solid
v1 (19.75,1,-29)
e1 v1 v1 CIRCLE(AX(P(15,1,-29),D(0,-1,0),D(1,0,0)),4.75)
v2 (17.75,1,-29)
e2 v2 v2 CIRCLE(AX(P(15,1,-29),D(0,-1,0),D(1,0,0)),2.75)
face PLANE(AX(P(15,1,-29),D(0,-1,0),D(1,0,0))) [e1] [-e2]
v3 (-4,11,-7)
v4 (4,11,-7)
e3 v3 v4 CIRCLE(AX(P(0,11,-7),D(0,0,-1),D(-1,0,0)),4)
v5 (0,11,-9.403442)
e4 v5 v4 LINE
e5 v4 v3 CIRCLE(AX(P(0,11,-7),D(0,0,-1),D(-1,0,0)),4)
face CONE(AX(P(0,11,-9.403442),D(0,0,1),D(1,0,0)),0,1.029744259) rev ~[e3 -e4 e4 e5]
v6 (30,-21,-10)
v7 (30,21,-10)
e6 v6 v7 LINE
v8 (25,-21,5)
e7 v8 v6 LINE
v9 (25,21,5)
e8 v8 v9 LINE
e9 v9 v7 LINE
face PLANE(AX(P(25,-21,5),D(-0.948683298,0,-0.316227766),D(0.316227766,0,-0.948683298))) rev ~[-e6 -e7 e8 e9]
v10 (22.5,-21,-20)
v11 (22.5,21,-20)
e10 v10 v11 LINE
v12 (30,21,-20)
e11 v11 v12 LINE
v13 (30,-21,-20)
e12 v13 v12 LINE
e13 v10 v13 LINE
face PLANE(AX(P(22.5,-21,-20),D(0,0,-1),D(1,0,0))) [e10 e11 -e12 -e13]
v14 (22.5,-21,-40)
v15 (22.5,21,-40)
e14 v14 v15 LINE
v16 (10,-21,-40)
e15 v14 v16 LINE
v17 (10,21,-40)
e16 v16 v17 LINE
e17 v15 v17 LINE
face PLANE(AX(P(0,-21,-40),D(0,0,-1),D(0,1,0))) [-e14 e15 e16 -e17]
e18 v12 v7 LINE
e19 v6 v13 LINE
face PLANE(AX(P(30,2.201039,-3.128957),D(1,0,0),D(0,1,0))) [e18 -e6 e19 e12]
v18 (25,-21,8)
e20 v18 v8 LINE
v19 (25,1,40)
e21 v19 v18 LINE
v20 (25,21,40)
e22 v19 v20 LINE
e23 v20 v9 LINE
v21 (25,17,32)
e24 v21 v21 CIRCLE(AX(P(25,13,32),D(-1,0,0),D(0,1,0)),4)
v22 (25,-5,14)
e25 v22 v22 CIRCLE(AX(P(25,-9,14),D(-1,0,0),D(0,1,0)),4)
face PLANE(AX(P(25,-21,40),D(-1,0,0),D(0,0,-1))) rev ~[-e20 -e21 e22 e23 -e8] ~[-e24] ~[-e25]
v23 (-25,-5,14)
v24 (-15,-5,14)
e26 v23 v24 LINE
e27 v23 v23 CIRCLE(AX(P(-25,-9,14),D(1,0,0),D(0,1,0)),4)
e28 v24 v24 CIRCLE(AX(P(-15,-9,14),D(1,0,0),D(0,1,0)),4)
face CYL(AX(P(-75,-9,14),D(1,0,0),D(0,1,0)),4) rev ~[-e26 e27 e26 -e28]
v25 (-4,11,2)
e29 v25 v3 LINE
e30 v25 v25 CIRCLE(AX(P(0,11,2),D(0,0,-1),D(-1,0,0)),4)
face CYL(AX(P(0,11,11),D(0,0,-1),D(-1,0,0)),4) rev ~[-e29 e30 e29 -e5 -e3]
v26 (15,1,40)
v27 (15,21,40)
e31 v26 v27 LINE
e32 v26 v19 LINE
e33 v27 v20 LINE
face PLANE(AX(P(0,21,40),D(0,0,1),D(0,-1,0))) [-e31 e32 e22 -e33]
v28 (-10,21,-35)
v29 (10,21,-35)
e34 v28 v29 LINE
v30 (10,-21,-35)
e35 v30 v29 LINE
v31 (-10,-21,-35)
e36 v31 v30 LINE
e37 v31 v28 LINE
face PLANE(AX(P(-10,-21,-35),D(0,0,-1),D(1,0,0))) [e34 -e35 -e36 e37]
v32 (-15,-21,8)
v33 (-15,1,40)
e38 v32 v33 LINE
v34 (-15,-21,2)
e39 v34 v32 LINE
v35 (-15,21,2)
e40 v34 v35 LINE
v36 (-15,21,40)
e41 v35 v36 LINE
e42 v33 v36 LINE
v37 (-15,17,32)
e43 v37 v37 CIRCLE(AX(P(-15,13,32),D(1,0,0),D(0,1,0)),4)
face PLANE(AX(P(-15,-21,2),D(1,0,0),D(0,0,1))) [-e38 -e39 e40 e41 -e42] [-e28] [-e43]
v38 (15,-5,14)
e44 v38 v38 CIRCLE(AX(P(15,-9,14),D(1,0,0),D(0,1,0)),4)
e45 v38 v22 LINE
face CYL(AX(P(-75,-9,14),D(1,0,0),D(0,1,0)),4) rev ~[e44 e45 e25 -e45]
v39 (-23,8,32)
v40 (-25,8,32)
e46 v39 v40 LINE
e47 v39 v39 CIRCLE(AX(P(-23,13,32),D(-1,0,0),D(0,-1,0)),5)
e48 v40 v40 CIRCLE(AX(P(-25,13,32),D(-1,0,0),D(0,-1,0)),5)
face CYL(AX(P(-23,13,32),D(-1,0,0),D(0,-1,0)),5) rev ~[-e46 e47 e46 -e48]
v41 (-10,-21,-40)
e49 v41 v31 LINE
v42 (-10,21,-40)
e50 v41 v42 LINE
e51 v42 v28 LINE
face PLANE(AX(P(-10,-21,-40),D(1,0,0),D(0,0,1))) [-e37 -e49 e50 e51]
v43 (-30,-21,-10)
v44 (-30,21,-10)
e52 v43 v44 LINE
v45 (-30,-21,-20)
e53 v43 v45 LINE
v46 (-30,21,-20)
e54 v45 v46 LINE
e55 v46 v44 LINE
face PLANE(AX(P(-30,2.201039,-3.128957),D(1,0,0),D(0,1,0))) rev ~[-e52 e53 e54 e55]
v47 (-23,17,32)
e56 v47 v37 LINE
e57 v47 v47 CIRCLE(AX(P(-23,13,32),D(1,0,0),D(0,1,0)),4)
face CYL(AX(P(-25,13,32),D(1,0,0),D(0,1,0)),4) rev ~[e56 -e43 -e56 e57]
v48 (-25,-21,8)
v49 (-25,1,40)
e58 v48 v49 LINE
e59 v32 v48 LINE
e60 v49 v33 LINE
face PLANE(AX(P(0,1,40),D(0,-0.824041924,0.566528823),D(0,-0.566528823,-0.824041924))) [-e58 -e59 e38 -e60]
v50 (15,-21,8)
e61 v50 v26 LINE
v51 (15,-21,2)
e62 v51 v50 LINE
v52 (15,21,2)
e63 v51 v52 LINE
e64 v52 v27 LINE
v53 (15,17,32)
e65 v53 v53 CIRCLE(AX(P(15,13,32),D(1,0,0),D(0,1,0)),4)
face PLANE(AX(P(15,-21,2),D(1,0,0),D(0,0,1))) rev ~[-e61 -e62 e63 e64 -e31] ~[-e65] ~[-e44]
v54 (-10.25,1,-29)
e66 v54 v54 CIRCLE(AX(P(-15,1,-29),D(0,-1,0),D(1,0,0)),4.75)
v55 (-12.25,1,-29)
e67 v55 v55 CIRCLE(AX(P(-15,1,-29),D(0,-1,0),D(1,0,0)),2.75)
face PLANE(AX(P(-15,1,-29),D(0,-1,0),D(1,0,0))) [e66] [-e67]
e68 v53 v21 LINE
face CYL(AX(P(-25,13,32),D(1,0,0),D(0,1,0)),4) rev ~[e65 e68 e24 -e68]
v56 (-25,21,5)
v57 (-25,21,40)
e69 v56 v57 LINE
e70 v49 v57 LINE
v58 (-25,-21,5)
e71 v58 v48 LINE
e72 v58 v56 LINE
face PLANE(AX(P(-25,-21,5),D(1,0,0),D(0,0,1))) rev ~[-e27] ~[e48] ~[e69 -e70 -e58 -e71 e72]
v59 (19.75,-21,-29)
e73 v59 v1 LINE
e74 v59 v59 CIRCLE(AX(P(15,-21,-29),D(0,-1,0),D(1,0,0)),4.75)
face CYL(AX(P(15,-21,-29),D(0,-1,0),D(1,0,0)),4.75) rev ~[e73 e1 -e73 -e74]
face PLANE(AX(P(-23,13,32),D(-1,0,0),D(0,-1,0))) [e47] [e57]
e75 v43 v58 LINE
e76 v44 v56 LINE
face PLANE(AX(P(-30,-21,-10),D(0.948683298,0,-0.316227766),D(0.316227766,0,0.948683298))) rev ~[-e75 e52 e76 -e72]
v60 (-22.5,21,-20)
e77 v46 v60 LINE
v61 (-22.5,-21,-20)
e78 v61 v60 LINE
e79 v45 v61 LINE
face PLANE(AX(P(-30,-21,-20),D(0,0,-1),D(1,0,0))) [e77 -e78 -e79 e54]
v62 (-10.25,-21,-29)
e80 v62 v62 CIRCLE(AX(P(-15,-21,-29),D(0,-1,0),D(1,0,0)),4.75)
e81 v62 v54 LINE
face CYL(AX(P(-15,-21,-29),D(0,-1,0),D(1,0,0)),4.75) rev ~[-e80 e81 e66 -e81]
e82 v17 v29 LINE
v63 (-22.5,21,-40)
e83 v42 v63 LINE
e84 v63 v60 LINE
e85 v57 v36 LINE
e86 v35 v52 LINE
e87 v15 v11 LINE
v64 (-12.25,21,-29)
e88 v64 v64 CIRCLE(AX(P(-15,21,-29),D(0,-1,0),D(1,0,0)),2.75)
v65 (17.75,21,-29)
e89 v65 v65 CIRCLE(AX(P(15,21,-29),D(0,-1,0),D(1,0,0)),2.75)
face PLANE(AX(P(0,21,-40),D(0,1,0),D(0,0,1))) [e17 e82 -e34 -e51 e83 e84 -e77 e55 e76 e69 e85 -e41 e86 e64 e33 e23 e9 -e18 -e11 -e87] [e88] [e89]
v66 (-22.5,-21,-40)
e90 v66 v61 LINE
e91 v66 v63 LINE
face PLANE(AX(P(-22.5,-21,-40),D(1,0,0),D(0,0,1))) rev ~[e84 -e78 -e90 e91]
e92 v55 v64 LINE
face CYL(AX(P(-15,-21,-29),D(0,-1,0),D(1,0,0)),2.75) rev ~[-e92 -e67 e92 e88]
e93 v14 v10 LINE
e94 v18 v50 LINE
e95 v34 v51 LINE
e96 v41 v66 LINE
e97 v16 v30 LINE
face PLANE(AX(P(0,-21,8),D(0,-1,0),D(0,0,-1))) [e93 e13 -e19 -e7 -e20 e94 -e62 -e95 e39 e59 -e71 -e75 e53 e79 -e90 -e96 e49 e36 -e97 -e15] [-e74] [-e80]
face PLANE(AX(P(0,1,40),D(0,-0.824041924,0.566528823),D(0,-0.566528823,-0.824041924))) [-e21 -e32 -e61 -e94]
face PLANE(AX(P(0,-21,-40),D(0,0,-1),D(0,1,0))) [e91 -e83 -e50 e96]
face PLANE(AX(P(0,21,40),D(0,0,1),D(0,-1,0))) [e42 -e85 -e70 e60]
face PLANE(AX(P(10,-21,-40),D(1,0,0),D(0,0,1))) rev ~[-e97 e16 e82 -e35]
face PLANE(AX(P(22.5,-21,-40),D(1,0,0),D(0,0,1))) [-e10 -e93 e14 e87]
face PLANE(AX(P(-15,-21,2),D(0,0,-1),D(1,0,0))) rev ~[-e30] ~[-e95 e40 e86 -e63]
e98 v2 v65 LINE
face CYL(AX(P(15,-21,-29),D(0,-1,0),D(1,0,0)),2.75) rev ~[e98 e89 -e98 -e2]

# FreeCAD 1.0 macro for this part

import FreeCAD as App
import Part
import Sketcher
from FreeCAD import Vector


def add_polygon(sketch, points):
    """Adds a closed chain of lines whose ends are joined by coincident constraints."""
    first, n = sketch.GeometryCount, len(points)
    for a, b in zip(points, points[1:] + points[:1]):
        sketch.addGeometry(Part.LineSegment(App.Vector(*a, 0), App.Vector(*b, 0)), False)
    for i in range(n):
        sketch.addConstraint(Sketcher.Constraint("Coincident", first + i, 2, first + (i + 1) % n, 1))

doc = App.newDocument("Part")
body = doc.addObject("PartDesign::Body", "Body")

sketch1 = doc.addObject("Sketcher::SketchObject", "Sketch")
body.addObject(sketch1)
sketch1.AttachmentSupport = (doc.YZ_Plane, [""])
sketch1.MapMode = "FlatFace"
add_polygon(sketch1, [(21, -40), (21, 40), (1, 40), (-21, 8), (-21, -40)])
sketch1.addConstraint([
    Sketcher.Constraint("Vertical", 0),
    Sketcher.Constraint("Horizontal", 1),
    Sketcher.Constraint("Vertical", 3),
    Sketcher.Constraint("Horizontal", 4),
    Sketcher.Constraint("Symmetric", 0, 2, 3, 2, -1, 1),
    Sketcher.Constraint("DistanceX", 1, 2, 1, 1, 20.0),
    Sketcher.Constraint("DistanceX", 4, 1, 4, 2, 42.0),
    Sketcher.Constraint("DistanceY", 0, 1, 0, 2, 80.0),
    Sketcher.Constraint("DistanceY", 3, 2, 3, 1, 48.0),
])
pad1 = doc.addObject("PartDesign::Pad", "Pad")
body.addObject(pad1)
pad1.Profile = sketch1
pad1.Length = 60
pad1.Midplane = True

sketch2 = doc.addObject("Sketcher::SketchObject", "Sketch001")
body.addObject(sketch2)
sketch2.AttachmentSupport = (doc.XZ_Plane, [""])
sketch2.MapMode = "FlatFace"
sketch2.AttachmentOffset = App.Placement(Vector(0, 0, 21), App.Rotation())
add_polygon(sketch2, [(30, 40), (25, 40), (25, 5), (30, -10)])
add_polygon(sketch2, [(-15, 40), (-15, 2), (15, 2), (15, 40)])
add_polygon(sketch2, [(-30, -20), (-30, -40), (-22.5, -40), (-22.5, -20)])
add_polygon(sketch2, [(22.5, -20), (22.5, -40), (30, -40), (30, -20)])
add_polygon(sketch2, [(-30, -10), (-25, 5), (-25, 40), (-30, 40)])
add_polygon(sketch2, [(-10, -35), (-10, -40), (10, -40), (10, -35)])
sketch2.addConstraint([
    Sketcher.Constraint("Horizontal", 0),
    Sketcher.Constraint("Vertical", 1),
    Sketcher.Constraint("Vertical", 3),
    Sketcher.Constraint("Vertical", 4),
    Sketcher.Constraint("Horizontal", 5),
    Sketcher.Constraint("Vertical", 6),
    Sketcher.Constraint("Horizontal", 7),
    Sketcher.Constraint("Vertical", 8),
    Sketcher.Constraint("Horizontal", 9),
    Sketcher.Constraint("Vertical", 10),
    Sketcher.Constraint("Horizontal", 11),
    Sketcher.Constraint("Vertical", 12),
    Sketcher.Constraint("Horizontal", 13),
    Sketcher.Constraint("Vertical", 14),
    Sketcher.Constraint("Horizontal", 15),
    Sketcher.Constraint("Vertical", 17),
    Sketcher.Constraint("Horizontal", 18),
    Sketcher.Constraint("Vertical", 19),
    Sketcher.Constraint("Vertical", 20),
    Sketcher.Constraint("Horizontal", 21),
    Sketcher.Constraint("Vertical", 22),
    Sketcher.Constraint("Horizontal", 23),
    Sketcher.Constraint("Symmetric", 3, 2, 8, 2, -1, 1),
    Sketcher.Constraint("Symmetric", 13, 2, 18, 2, -1, 1),
    Sketcher.Constraint("Symmetric", 9, 2, 12, 2, -2),
    Sketcher.Constraint("Symmetric", 11, 2, 14, 2, -2),
    Sketcher.Constraint("Symmetric", 1, 2, 16, 2, -2),
    Sketcher.Constraint("Horizontal", 3, 2, 6, 2),
    Sketcher.Constraint("Horizontal", 2, 2, 19, 2),
    Sketcher.Constraint("Horizontal", 13, 2, 20, 2),
    Sketcher.Constraint("Equal", 23, 8),
    Sketcher.Constraint("Equal", 18, 20),
    Sketcher.Constraint("DistanceX", 0, 2, 0, 1, 5.0),
    Sketcher.Constraint("DistanceX", 5, 1, 5, 2, 30.0),
    Sketcher.Constraint("DistanceX", 21, 1, 21, 2, 20.0),
    Sketcher.Constraint("DistanceY", 1, 2, 1, 1, 35.0),
    Sketcher.Constraint("DistanceY", 3, 1, 3, 2, 50.0),
    Sketcher.Constraint("DistanceY", 4, 2, 4, 1, 38.0),
    Sketcher.Constraint("DistanceX", 9, 1, 9, 2, 7.5),
    Sketcher.Constraint("DistanceX", -1, 1, 0, 2, 25.0),
    Sketcher.Constraint("DistanceY", -1, 1, 0, 2, 40.0),
    Sketcher.Constraint("DistanceX", 4, 2, -1, 1, 15.0),
    Sketcher.Constraint("DistanceX", 20, 2, -1, 1, 10.0),
])
pocket1 = doc.addObject("PartDesign::Pocket", "Pocket")
body.addObject(pocket1)
pocket1.Profile = sketch2
pocket1.Length = 42

sketch3 = doc.addObject("Sketcher::SketchObject", "Sketch002")
body.addObject(sketch3)
sketch3.AttachmentSupport = (doc.XZ_Plane, [""])
sketch3.MapMode = "FlatFace"
sketch3.AttachmentOffset = App.Placement(Vector(0, 0, 21), App.Rotation())
sketch3.addGeometry([
    Part.Circle(Vector(15, -29, 0), Vector(0, 0, 1), 4.75),
    Part.Circle(Vector(-15, -29, 0), Vector(0, 0, 1), 4.75),
], False)
sketch3.addConstraint([
    Sketcher.Constraint("Equal", 0, 1),
    Sketcher.Constraint("Symmetric", 0, 3, 1, 3, -2),
    Sketcher.Constraint("Diameter", 0, 9.5),
    Sketcher.Constraint("DistanceX", -1, 1, 0, 3, 15.0),
    Sketcher.Constraint("DistanceY", 0, 3, -1, 1, 29.0),
])
pocket2 = doc.addObject("PartDesign::Pocket", "Pocket001")
body.addObject(pocket2)
pocket2.Profile = sketch3
pocket2.Length = 22

sketch4 = doc.addObject("Sketcher::SketchObject", "Sketch003")
body.addObject(sketch4)
sketch4.AttachmentSupport = (doc.XZ_Plane, [""])
sketch4.MapMode = "FlatFace"
sketch4.AttachmentOffset = App.Placement(Vector(0, 0, 21), App.Rotation())
sketch4.addGeometry([
    Part.Circle(Vector(-15, -29, 0), Vector(0, 0, 1), 2.75),
    Part.Circle(Vector(15, -29, 0), Vector(0, 0, 1), 2.75),
], False)
sketch4.addConstraint([
    Sketcher.Constraint("Equal", 0, 1),
    Sketcher.Constraint("Symmetric", 0, 3, 1, 3, -2),
    Sketcher.Constraint("Diameter", 0, 5.5),
    Sketcher.Constraint("DistanceX", 0, 3, -1, 1, 15.0),
    Sketcher.Constraint("DistanceY", 0, 3, -1, 1, 29.0),
])
pocket3 = doc.addObject("PartDesign::Pocket", "Pocket002")
body.addObject(pocket3)
pocket3.Profile = sketch4
pocket3.Length = 42

sketch5 = doc.addObject("Sketcher::SketchObject", "Sketch004")
body.addObject(sketch5)
sketch5.AttachmentSupport = (doc.XY_Plane, [""])
sketch5.MapMode = "FlatFace"
sketch5.AttachmentOffset = App.Placement(Vector(0, 0, 2), App.Rotation())
sketch5.addGeometry(Part.Circle(Vector(0, 11, 0), Vector(0, 0, 1), 4), False)
sketch5.addConstraint([
    Sketcher.Constraint("PointOnObject", 0, 3, -2),
    Sketcher.Constraint("Diameter", 0, 8.0),
    Sketcher.Constraint("DistanceY", -1, 1, 0, 3, 11.0),
])
doc.recompute()
hole = doc.addObject("PartDesign::Hole", "Hole")
body.addObject(hole)
hole.Profile = sketch5
hole.ThreadType = "None"
hole.Diameter = 8
hole.DepthType = "Dimension"
hole.Depth = 9
hole.DrillPoint = "Angled"
hole.DrillPointAngle = 118

sketch6 = doc.addObject("Sketcher::SketchObject", "Sketch005")
body.addObject(sketch6)
sketch6.AttachmentSupport = (doc.YZ_Plane, [""])
sketch6.MapMode = "FlatFace"
sketch6.AttachmentOffset = App.Placement(Vector(0, 0, -25), App.Rotation())
sketch6.addGeometry(Part.Circle(Vector(13, 32, 0), Vector(0, 0, 1), 4), False)
sketch6.addConstraint([
    Sketcher.Constraint("Diameter", 0, 8.0),
    Sketcher.Constraint("DistanceX", -1, 1, 0, 3, 13.0),
    Sketcher.Constraint("DistanceY", -1, 1, 0, 3, 32.0),
])
doc.recompute()
hole2 = doc.addObject("PartDesign::Hole", "Hole001")
body.addObject(hole2)
hole2.Profile = sketch6
hole2.ThreadType = "None"
hole2.Diameter = 8
hole2.DepthType = "Dimension"
hole2.Depth = 50
hole2.DrillPoint = "Angled"
hole2.DrillPointAngle = 118
hole2.HoleCutType = "Counterbore"
hole2.HoleCutDiameter = 10
hole2.HoleCutDepth = 2
hole2.Reversed = True

sketch7 = doc.addObject("Sketcher::SketchObject", "Sketch006")
body.addObject(sketch7)
sketch7.AttachmentSupport = (doc.YZ_Plane, [""])
sketch7.MapMode = "FlatFace"
sketch7.AttachmentOffset = App.Placement(Vector(0, 0, -25), App.Rotation())
sketch7.addGeometry(Part.Circle(Vector(-9, 14, 0), Vector(0, 0, 1), 4), False)
sketch7.addConstraint([
    Sketcher.Constraint("Diameter", 0, 8.0),
    Sketcher.Constraint("DistanceX", 0, 3, -1, 1, 9.0),
    Sketcher.Constraint("DistanceY", -1, 1, 0, 3, 14.0),
])
doc.recompute()
hole3 = doc.addObject("PartDesign::Hole", "Hole002")
body.addObject(hole3)
hole3.Profile = sketch7
hole3.ThreadType = "None"
hole3.Diameter = 8
hole3.DepthType = "Dimension"
hole3.Depth = 50
hole3.DrillPoint = "Angled"
hole3.DrillPointAngle = 118
hole3.Reversed = True

doc.recompute()
